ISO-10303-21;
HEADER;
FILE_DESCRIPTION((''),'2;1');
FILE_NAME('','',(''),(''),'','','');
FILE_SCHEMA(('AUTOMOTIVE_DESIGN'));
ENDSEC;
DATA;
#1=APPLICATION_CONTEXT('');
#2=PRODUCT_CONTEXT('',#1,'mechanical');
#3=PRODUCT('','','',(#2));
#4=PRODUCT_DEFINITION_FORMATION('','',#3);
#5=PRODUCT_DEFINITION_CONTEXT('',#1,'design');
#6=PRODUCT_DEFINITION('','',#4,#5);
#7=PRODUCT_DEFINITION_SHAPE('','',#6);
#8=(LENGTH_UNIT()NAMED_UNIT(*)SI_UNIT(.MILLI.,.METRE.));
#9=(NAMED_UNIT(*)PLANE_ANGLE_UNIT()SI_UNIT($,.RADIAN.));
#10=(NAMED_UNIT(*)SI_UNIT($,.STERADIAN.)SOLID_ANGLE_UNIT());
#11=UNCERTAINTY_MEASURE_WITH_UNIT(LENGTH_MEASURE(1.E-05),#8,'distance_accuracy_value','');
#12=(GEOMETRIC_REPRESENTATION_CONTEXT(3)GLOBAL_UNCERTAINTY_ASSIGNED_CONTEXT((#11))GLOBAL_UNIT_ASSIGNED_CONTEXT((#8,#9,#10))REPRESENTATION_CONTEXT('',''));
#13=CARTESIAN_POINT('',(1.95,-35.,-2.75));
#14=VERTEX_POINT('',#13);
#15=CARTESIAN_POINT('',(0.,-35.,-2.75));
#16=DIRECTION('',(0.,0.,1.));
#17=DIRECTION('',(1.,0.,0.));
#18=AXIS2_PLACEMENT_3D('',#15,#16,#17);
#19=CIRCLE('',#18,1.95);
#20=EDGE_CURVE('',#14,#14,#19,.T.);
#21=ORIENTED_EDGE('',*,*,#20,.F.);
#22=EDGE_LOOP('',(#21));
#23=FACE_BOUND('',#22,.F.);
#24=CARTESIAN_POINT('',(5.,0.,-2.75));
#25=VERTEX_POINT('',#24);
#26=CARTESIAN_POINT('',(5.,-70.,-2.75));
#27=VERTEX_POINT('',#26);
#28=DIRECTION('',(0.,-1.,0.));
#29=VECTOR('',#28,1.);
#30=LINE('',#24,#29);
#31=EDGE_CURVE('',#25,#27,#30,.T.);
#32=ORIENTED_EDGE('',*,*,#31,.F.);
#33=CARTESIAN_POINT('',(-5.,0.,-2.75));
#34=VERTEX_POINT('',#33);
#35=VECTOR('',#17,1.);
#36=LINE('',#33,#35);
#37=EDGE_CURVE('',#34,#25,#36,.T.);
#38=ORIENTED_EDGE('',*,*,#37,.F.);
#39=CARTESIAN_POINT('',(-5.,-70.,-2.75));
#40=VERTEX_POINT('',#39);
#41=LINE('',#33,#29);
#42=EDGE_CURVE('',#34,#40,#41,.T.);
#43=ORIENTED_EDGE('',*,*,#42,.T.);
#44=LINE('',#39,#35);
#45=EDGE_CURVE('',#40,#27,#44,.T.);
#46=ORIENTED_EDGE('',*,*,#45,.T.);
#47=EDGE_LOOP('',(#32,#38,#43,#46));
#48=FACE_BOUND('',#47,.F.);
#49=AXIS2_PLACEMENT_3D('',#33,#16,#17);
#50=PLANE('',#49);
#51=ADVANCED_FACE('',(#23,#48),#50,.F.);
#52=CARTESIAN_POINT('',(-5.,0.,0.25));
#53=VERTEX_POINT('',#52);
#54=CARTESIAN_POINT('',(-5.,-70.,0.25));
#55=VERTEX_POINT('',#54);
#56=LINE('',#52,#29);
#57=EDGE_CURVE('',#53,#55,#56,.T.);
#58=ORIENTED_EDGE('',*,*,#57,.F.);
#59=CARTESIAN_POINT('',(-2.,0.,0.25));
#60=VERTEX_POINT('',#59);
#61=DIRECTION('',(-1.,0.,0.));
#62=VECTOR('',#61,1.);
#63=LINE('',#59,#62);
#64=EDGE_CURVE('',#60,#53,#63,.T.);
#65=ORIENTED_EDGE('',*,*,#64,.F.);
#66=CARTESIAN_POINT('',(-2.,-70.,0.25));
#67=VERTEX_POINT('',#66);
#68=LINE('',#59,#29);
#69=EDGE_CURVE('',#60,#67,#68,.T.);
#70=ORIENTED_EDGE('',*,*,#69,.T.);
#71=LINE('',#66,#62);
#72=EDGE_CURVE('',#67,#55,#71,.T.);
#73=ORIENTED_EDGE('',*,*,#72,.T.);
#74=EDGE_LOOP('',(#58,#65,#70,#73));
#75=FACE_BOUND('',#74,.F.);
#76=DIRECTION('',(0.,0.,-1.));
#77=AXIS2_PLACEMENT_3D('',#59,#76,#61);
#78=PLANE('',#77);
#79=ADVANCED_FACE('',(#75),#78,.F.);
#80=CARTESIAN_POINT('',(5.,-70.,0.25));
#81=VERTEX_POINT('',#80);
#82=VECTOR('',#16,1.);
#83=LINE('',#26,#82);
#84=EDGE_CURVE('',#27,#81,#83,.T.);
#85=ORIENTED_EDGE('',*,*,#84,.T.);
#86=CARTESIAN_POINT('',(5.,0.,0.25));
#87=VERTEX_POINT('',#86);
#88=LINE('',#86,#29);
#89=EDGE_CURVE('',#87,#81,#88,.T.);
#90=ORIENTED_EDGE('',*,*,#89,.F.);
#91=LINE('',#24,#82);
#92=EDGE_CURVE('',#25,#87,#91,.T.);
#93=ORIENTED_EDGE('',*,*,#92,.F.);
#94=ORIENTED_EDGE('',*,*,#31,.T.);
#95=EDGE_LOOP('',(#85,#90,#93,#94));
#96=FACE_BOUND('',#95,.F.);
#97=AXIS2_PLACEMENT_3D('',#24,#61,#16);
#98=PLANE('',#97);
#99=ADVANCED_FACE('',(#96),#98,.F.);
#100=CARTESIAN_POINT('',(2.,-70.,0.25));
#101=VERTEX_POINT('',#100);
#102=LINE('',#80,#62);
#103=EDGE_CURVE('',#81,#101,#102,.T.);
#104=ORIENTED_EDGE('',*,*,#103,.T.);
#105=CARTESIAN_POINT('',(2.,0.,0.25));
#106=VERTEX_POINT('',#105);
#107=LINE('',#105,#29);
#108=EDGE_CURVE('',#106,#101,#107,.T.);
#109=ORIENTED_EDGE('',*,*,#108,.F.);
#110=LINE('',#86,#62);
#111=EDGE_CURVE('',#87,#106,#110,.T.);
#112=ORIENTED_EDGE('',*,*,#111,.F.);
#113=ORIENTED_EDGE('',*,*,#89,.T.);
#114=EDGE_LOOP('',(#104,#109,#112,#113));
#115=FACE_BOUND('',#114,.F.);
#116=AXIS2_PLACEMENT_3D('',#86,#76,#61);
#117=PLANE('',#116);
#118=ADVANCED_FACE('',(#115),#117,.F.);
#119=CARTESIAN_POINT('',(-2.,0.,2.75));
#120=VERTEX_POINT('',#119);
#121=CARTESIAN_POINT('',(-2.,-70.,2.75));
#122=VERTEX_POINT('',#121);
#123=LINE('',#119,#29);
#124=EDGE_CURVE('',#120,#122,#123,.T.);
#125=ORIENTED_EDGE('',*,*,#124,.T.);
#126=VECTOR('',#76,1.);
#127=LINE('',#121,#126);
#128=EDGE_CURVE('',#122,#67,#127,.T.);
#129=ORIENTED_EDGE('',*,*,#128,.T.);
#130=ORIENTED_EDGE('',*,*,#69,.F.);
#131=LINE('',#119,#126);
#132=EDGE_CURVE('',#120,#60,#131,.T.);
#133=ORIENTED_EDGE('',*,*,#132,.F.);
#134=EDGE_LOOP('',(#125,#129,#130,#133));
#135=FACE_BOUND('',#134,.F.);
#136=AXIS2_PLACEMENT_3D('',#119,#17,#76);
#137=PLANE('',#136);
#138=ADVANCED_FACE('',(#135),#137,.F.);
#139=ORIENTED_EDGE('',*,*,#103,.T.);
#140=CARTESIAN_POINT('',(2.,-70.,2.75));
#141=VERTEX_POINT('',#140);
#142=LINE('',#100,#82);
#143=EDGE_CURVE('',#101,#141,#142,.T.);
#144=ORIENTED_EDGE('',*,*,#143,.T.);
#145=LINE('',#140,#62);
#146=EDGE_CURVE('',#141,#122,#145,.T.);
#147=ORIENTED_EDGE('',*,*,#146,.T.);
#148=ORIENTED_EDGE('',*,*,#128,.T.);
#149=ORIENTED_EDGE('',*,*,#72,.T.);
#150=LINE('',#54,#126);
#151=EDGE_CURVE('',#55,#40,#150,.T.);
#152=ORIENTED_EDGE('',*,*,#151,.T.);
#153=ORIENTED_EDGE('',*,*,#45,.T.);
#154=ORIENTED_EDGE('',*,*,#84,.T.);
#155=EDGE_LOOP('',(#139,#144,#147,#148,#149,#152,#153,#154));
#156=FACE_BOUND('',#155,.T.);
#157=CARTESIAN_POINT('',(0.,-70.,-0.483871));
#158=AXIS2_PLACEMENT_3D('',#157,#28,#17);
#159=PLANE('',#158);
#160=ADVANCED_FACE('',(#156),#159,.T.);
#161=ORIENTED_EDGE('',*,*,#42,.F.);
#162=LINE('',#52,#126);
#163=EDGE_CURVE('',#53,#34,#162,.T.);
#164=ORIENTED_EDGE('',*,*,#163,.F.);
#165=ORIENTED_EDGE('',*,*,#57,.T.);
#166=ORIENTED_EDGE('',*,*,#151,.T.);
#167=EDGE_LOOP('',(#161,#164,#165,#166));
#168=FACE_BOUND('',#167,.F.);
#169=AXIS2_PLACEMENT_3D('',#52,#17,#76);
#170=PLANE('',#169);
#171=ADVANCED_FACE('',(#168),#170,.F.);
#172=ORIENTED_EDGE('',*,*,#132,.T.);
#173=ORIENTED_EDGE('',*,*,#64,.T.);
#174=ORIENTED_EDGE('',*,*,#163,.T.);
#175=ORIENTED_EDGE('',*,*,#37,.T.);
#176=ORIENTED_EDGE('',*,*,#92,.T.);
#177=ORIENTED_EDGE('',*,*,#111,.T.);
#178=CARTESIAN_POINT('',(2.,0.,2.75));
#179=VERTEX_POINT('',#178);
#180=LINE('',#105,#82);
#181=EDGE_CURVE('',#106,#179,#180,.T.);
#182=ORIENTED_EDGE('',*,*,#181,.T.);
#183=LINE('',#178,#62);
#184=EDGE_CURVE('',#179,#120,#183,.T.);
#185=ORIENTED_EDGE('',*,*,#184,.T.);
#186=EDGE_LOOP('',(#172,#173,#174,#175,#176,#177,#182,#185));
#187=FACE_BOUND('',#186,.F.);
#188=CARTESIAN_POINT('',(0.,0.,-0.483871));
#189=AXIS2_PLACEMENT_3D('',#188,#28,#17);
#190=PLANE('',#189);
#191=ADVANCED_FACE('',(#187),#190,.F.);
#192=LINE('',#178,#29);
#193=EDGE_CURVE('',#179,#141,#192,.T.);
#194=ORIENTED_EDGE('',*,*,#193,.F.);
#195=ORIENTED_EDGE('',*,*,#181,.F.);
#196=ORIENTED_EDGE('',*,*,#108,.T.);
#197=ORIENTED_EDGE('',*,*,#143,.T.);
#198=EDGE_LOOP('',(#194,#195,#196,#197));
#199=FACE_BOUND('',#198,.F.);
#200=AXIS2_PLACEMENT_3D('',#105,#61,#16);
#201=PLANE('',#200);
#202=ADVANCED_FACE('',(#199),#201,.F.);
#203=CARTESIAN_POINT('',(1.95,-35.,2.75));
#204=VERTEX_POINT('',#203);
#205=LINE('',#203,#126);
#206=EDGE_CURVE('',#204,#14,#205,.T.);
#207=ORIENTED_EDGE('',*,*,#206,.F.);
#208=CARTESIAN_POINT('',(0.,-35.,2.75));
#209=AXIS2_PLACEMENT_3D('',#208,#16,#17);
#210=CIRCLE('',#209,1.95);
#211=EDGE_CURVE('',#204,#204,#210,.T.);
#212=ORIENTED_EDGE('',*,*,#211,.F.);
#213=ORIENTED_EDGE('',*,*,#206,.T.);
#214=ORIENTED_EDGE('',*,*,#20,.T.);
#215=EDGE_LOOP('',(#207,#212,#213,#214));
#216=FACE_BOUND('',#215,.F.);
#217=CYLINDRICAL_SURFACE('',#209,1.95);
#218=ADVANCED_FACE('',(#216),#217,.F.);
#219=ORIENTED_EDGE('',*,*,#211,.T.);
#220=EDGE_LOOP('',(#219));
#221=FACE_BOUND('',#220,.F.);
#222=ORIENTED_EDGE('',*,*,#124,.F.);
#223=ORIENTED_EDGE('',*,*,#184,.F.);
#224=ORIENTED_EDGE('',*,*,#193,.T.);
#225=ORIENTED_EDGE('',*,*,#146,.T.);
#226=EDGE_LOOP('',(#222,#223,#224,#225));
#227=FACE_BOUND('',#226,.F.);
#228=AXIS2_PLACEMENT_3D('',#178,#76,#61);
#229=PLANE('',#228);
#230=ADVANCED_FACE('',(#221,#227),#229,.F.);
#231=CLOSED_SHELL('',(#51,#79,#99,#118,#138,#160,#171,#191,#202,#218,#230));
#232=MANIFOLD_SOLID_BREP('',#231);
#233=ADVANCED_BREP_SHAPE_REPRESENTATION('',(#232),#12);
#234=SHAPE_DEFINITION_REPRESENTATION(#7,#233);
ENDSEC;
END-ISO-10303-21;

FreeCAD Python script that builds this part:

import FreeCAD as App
import Part
import Sketcher
from FreeCAD import Vector
Q = App.Units.Quantity


def add_polygon(sketch, points):
    """Adds a closed chain of lines whose ends are joined by coincident constraints."""
    first, n = sketch.GeometryCount, len(points)
    for a, b in zip(points, points[1:] + points[:1]):
        sketch.addGeometry(Part.LineSegment(App.Vector(*a, 0), App.Vector(*b, 0)), False)
    for i in range(n):
        sketch.addConstraint(Sketcher.Constraint("Coincident", first + i, 2, first + (i + 1) % n, 1))

doc = App.newDocument("Part")
params = doc.addObject("Spreadsheet::Sheet", "Params")
for row, (alias, value) in enumerate([
    ("sketch1_width", "10 mm"),
    ("sketch1_width2", "3 mm"),
    ("sketch1_height", "2.5 mm"),
    ("pad1_length", "70 mm"),
    ("sketch2_diameter", "3.9 mm"),
    ("pocket1_length", "25 mm"),
], start=1):
    params.set(f"A{row}", alias)
    params.set(f"B{row}", "=" + value)
    params.setAlias(f"B{row}", alias)

body = doc.addObject("PartDesign::Body", "Body")

# Sketch on XZ plane
sketch1 = doc.addObject("Sketcher::SketchObject", "Sketch")
body.addObject(sketch1)
sketch1.AttachmentSupport = (doc.XZ_Plane, [""])
sketch1.MapMode = "FlatFace"
add_polygon(sketch1, [(-5, 0.25), (-5, -2.75), (5, -2.75), (5, 0.25), (2, 0.25), (2, 2.75), (-2, 2.75), (-2, 0.25)])  # lines 0-7
sketch1.addConstraint([
    Sketcher.Constraint("Vertical", 0),
    Sketcher.Constraint("Horizontal", 1),
    Sketcher.Constraint("Vertical", 2),
    Sketcher.Constraint("Horizontal", 3),
    Sketcher.Constraint("Vertical", 4),
    Sketcher.Constraint("Horizontal", 5),
    Sketcher.Constraint("Vertical", 6),
    Sketcher.Constraint("Horizontal", 7),
    Sketcher.Constraint("Symmetric", 3, 2, 6, 2, -2),
    Sketcher.Constraint("Equal", 3, 7),
    Sketcher.Constraint("Equal", 7, 0),
    Sketcher.Constraint("DistanceX", 1, 1, 1, 2, Q("10 mm")),
    Sketcher.Constraint("DistanceX", 3, 2, 3, 1, Q("3 mm")),
    Sketcher.Constraint("DistanceY", 4, 1, 4, 2, Q("2.5 mm")),
    Sketcher.Constraint("DistanceY", 0, 2, -1, 1, Q("2.75 mm")),
])
sketch1.setExpression("Constraints[19]", "Params.sketch1_width")
sketch1.setExpression("Constraints[20]", "Params.sketch1_width2")
sketch1.setExpression("Constraints[21]", "Params.sketch1_height")
pad1 = doc.addObject("PartDesign::Pad", "Pad")
body.addObject(pad1)
pad1.Profile = sketch1
pad1.setExpression("Length", "Params.pad1_length")

# Sketch on XY plane
sketch2 = doc.addObject("Sketcher::SketchObject", "Sketch001")
body.addObject(sketch2)
sketch2.AttachmentSupport = (doc.XY_Plane, [""])
sketch2.MapMode = "FlatFace"
sketch2.AttachmentOffset = App.Placement(Vector(0, 0, 2.75), App.Rotation())
sketch2.addGeometry(Part.Circle(Vector(0, -35, 0), Vector(0, 0, 1), 1.95), False)
sketch2.addConstraint([
    Sketcher.Constraint("PointOnObject", 0, 3, -2),
    Sketcher.Constraint("Diameter", 0, Q("3.9 mm")),
    Sketcher.Constraint("DistanceY", 0, 3, -1, 1, Q("35 mm")),
])
sketch2.setExpression("Constraints[1]", "Params.sketch2_diameter")
pocket1 = doc.addObject("PartDesign::Pocket", "Pocket")
body.addObject(pocket1)
pocket1.Profile = sketch2
pocket1.setExpression("Length", "Params.pocket1_length")

doc.recompute()
